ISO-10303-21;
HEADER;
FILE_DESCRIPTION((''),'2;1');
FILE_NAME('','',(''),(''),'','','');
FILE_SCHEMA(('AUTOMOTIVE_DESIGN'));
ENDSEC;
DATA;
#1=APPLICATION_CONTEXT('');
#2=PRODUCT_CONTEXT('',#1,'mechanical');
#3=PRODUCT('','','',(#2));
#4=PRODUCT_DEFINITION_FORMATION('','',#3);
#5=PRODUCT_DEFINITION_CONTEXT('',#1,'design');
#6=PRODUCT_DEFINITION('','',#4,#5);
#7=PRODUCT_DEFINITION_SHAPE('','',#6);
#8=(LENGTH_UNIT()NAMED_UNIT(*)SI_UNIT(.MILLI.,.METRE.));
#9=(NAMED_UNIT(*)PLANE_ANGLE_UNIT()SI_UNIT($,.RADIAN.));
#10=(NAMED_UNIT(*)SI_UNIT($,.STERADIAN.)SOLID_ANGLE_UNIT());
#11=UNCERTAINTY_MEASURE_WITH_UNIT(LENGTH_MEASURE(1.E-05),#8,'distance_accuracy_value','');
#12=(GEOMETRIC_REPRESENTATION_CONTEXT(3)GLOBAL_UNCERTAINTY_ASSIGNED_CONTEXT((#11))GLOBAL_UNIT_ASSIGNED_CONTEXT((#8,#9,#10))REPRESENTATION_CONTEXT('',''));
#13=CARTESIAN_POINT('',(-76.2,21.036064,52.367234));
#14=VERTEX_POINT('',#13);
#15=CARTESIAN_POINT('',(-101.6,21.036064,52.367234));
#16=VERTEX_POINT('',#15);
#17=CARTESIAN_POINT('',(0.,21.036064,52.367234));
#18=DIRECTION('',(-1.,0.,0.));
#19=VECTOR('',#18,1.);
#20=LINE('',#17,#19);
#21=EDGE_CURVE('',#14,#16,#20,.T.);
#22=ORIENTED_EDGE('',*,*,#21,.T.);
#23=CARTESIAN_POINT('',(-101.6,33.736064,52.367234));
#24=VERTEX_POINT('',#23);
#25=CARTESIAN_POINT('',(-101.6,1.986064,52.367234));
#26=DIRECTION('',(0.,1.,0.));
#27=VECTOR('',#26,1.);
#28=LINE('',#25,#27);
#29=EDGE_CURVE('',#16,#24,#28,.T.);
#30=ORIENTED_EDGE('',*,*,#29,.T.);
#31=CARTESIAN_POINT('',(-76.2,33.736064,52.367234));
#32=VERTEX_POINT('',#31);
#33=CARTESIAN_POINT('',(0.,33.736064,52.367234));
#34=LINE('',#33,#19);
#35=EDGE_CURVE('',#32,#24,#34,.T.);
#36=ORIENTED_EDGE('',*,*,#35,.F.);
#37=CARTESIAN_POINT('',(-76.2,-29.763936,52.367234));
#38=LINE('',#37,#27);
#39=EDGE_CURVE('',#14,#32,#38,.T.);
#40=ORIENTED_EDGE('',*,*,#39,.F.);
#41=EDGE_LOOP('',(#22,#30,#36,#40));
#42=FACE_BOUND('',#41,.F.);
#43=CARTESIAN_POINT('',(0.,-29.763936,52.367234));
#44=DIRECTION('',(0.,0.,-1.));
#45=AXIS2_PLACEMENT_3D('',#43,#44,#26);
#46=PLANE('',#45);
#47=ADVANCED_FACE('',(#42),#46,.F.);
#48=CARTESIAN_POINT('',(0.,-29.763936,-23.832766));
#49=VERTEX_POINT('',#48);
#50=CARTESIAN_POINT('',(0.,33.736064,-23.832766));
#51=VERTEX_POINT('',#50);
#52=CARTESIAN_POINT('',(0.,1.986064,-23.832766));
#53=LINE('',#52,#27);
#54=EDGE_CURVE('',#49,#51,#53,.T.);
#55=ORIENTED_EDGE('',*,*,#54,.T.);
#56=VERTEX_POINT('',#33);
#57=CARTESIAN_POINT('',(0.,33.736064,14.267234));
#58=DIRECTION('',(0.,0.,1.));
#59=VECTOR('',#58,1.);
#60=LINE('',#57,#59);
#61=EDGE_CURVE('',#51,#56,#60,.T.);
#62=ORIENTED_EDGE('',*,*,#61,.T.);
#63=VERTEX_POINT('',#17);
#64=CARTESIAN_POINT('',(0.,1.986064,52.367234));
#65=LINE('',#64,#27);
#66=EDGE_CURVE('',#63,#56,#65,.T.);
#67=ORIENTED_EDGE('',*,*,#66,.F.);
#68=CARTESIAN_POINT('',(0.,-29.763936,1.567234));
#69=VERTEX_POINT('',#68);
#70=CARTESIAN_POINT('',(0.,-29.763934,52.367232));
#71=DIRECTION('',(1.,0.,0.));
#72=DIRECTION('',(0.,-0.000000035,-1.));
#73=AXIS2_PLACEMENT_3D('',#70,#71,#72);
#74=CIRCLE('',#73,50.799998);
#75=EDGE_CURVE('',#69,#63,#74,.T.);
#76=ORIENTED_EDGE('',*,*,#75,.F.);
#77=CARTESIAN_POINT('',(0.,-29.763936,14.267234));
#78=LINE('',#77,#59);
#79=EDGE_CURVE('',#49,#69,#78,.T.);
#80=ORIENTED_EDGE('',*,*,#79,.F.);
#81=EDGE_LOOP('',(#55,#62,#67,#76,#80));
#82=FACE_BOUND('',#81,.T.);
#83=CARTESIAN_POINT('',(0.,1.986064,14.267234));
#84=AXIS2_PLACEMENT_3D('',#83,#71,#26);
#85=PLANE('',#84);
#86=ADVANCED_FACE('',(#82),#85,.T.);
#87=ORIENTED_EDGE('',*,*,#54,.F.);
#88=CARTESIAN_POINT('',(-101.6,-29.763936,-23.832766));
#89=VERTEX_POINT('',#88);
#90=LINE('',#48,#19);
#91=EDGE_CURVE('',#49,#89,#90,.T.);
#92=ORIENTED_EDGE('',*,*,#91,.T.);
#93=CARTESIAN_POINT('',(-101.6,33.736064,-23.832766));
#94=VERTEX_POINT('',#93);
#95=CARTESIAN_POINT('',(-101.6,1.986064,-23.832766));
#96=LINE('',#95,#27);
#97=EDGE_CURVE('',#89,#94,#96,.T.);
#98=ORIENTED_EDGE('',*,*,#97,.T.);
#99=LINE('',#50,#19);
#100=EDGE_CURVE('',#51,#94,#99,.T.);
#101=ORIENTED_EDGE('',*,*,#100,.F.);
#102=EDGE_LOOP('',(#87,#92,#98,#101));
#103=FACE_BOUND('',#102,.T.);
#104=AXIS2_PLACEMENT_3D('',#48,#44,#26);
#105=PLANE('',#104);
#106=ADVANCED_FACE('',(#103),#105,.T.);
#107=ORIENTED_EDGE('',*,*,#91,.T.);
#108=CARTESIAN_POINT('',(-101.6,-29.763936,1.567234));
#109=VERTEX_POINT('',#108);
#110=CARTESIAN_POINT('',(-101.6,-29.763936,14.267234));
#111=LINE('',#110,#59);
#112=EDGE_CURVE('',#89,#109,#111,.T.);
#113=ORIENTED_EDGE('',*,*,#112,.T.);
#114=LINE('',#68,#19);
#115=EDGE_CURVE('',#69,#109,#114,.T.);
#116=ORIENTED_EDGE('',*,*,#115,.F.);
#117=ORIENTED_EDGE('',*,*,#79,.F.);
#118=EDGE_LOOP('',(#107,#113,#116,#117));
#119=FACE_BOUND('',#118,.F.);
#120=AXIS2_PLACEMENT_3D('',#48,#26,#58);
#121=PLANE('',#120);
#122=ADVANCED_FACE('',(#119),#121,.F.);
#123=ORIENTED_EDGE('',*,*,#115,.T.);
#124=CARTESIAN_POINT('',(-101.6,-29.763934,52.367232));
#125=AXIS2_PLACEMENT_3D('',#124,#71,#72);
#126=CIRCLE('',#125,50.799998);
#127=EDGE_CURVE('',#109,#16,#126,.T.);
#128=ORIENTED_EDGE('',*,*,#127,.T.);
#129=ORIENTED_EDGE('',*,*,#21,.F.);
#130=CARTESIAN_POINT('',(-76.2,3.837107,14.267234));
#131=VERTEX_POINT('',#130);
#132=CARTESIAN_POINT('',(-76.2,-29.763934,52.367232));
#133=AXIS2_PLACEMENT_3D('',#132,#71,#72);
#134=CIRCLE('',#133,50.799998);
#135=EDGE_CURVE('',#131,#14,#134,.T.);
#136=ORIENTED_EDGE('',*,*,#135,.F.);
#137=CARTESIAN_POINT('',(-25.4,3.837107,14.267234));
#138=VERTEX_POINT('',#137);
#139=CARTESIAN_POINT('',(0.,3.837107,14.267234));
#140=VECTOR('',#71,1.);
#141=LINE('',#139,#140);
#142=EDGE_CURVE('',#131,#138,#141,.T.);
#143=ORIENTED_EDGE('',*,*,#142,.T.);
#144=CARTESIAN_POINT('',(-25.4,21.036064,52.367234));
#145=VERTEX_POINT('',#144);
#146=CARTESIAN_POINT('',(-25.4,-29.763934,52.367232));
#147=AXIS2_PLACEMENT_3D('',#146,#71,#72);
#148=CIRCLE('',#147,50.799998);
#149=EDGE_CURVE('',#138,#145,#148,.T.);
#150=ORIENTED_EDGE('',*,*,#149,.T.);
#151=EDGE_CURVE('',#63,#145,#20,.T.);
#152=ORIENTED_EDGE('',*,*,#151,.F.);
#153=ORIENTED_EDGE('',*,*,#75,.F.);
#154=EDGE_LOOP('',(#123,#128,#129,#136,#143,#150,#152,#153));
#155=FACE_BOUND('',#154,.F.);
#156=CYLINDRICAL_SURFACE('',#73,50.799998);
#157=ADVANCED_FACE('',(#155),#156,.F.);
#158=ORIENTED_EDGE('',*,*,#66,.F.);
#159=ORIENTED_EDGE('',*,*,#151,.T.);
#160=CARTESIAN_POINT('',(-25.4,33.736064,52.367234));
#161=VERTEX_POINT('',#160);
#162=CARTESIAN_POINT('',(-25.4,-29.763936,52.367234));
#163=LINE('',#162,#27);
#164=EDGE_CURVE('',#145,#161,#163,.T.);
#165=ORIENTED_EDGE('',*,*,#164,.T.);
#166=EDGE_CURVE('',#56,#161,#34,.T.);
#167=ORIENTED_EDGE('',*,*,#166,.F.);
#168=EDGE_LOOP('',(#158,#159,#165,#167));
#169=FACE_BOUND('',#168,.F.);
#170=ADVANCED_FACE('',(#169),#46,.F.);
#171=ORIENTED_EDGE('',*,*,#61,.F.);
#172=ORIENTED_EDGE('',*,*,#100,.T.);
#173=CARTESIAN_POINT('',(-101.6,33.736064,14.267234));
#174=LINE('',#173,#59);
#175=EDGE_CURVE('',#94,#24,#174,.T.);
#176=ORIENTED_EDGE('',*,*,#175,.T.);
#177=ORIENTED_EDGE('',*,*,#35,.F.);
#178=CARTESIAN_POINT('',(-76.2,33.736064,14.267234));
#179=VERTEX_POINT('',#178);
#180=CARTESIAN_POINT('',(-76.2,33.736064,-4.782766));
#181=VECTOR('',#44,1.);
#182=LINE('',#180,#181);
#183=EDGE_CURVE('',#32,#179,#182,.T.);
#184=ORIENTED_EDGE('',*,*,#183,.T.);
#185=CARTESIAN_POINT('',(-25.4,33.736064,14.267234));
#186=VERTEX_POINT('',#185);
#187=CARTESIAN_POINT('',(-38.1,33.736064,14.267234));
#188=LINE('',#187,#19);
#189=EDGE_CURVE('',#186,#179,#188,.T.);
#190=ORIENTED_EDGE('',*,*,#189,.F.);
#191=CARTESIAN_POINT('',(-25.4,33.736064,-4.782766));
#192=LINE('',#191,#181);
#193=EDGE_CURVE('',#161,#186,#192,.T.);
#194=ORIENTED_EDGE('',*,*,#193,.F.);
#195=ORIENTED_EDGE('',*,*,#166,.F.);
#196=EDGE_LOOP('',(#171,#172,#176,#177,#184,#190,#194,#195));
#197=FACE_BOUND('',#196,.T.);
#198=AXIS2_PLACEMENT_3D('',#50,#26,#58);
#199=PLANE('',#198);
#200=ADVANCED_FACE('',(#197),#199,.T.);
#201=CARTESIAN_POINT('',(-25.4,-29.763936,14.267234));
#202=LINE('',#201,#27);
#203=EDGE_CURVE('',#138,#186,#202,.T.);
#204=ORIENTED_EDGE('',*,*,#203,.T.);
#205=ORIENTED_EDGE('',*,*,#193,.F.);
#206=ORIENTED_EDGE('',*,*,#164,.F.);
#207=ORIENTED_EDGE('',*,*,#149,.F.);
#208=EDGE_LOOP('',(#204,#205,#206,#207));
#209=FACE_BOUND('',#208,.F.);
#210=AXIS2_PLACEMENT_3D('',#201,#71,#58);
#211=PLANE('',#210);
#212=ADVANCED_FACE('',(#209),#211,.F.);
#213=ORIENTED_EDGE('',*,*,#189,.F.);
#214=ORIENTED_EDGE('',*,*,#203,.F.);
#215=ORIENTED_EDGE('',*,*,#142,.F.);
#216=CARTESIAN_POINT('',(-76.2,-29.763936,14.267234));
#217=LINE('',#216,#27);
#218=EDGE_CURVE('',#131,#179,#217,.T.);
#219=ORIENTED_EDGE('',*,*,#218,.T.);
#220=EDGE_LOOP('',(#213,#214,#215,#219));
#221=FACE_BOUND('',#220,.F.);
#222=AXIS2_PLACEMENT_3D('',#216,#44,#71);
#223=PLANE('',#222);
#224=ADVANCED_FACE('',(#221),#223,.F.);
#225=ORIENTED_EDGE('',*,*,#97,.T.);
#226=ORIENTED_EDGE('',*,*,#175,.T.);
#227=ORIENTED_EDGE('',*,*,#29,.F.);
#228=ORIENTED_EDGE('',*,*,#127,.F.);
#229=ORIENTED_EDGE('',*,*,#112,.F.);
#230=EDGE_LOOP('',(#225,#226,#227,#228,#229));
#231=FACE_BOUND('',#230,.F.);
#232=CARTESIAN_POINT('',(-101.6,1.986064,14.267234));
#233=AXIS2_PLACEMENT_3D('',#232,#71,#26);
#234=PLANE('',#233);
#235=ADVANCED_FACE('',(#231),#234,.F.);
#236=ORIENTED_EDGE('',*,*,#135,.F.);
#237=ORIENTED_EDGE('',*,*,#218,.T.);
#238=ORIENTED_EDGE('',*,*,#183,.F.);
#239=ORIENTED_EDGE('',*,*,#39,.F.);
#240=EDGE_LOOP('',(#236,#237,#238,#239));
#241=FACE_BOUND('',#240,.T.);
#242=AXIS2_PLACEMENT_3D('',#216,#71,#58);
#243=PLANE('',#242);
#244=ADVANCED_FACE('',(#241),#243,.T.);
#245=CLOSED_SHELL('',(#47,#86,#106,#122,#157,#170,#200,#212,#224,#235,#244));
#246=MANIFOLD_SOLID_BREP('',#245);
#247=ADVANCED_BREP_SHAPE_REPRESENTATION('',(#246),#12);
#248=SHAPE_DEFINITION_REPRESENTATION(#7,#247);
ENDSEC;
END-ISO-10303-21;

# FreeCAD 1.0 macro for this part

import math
import FreeCAD as App
import Part
import Sketcher
from FreeCAD import Vector
Q = App.Units.Quantity


def add_polygon(sketch, points):
    """Adds a closed chain of lines whose ends are joined by coincident constraints."""
    first, n = sketch.GeometryCount, len(points)
    for a, b in zip(points, points[1:] + points[:1]):
        sketch.addGeometry(Part.LineSegment(App.Vector(*a, 0), App.Vector(*b, 0)), False)
    for i in range(n):
        sketch.addConstraint(Sketcher.Constraint("Coincident", first + i, 2, first + (i + 1) % n, 1))

doc = App.newDocument("Part")
body = doc.addObject("PartDesign::Body", "Body")

# Sketch on YZ plane
sketch1 = doc.addObject("Sketcher::SketchObject", "Sketch")
body.addObject(sketch1)
sketch1.AttachmentSupport = (doc.YZ_Plane, [""])
sketch1.MapMode = "FlatFace"
add_polygon(sketch1, [(-30, 52), (-30, -24), (34, -24), (34, 52)])  # lines 0-3
sketch1.addConstraint([
    Sketcher.Constraint("Vertical", 0),
    Sketcher.Constraint("Horizontal", 1),
    Sketcher.Constraint("Vertical", 2),
    Sketcher.Constraint("Horizontal", 3),
    Sketcher.Constraint("DistanceY", 0, 2, 0, 1, Q("3 in")),
    Sketcher.Constraint("DistanceX", 1, 1, 1, 2, Q("2.5 in")),
    Sketcher.Constraint("DistanceX", 0, 2, -1, 1, Q("29.763936 mm")),
    Sketcher.Constraint("DistanceY", 0, 2, -1, 1, Q("23.832766 mm")),
])
pad1 = doc.addObject("PartDesign::Pad", "Pad")
body.addObject(pad1)
pad1.Profile = sketch1
pad1.Length = Q("4 in")
pad1.Reversed = True

# Sketch on XZ plane
sketch2 = doc.addObject("Sketcher::SketchObject", "Sketch001")
body.addObject(sketch2)
sketch2.AttachmentSupport = (doc.XZ_Plane, [""])
sketch2.MapMode = "FlatFace"
sketch2.AttachmentOffset = App.Placement(Vector(0, 0, 29.763936), App.Rotation())
add_polygon(sketch2, [(-76, 52), (-76, 14), (-25, 14), (-25, 52)])  # lines 0-3
sketch2.addConstraint([
    Sketcher.Constraint("Vertical", 0),
    Sketcher.Constraint("Horizontal", 1),
    Sketcher.Constraint("Vertical", 2),
    Sketcher.Constraint("Horizontal", 3),
    Sketcher.Constraint("DistanceX", 1, 1, 1, 2, Q("2 in")),
    Sketcher.Constraint("DistanceY", 0, 2, 0, 1, Q("1.5 in")),
    Sketcher.Constraint("DistanceX", 0, 2, -1, 1, Q("3 in")),
    Sketcher.Constraint("DistanceY", -1, 1, 0, 2, Q("14.267234 mm")),
])
pocket1 = doc.addObject("PartDesign::Pocket", "Pocket")
body.addObject(pocket1)
pocket1.Profile = sketch2
pocket1.Type = "ThroughAll"

# Sketch on YZ plane
sketch3 = doc.addObject("Sketcher::SketchObject", "Sketch002")
body.addObject(sketch3)
sketch3.AttachmentSupport = (doc.YZ_Plane, [""])
sketch3.MapMode = "FlatFace"
sketch3.addGeometry([
    Part.ArcOfCircle(Part.Circle(Vector(-30, 52, 0), Vector(0, 0, 1), 51), math.radians(-90), math.radians(0)),
    Part.ArcOfCircle(Part.Circle(Vector(-30, 52, 0), Vector(0, 0, 1), 51), math.radians(0), math.radians(270)),
], False)
sketch3.addConstraint([
    Sketcher.Constraint("Tangent", 0, 1, 1, 2),
    Sketcher.Constraint("Coincident", 1, 1, 0, 2),
    Sketcher.Constraint("Horizontal", 0, 3, 1, 1),
    Sketcher.Constraint("Vertical", 1, 3, 0, 1),
    Sketcher.Constraint("Radius", 0, Q("1.9999999 in")),
    Sketcher.Constraint("DistanceX", 0, 3, -1, 1, Q("29.763934 mm")),
    Sketcher.Constraint("DistanceY", -1, 1, 0, 3, Q("52.367232 mm")),
])
pocket2 = doc.addObject("PartDesign::Pocket", "Pocket001")
body.addObject(pocket2)
pocket2.Profile = sketch3
pocket2.Type = "ThroughAll"

doc.recompute()
